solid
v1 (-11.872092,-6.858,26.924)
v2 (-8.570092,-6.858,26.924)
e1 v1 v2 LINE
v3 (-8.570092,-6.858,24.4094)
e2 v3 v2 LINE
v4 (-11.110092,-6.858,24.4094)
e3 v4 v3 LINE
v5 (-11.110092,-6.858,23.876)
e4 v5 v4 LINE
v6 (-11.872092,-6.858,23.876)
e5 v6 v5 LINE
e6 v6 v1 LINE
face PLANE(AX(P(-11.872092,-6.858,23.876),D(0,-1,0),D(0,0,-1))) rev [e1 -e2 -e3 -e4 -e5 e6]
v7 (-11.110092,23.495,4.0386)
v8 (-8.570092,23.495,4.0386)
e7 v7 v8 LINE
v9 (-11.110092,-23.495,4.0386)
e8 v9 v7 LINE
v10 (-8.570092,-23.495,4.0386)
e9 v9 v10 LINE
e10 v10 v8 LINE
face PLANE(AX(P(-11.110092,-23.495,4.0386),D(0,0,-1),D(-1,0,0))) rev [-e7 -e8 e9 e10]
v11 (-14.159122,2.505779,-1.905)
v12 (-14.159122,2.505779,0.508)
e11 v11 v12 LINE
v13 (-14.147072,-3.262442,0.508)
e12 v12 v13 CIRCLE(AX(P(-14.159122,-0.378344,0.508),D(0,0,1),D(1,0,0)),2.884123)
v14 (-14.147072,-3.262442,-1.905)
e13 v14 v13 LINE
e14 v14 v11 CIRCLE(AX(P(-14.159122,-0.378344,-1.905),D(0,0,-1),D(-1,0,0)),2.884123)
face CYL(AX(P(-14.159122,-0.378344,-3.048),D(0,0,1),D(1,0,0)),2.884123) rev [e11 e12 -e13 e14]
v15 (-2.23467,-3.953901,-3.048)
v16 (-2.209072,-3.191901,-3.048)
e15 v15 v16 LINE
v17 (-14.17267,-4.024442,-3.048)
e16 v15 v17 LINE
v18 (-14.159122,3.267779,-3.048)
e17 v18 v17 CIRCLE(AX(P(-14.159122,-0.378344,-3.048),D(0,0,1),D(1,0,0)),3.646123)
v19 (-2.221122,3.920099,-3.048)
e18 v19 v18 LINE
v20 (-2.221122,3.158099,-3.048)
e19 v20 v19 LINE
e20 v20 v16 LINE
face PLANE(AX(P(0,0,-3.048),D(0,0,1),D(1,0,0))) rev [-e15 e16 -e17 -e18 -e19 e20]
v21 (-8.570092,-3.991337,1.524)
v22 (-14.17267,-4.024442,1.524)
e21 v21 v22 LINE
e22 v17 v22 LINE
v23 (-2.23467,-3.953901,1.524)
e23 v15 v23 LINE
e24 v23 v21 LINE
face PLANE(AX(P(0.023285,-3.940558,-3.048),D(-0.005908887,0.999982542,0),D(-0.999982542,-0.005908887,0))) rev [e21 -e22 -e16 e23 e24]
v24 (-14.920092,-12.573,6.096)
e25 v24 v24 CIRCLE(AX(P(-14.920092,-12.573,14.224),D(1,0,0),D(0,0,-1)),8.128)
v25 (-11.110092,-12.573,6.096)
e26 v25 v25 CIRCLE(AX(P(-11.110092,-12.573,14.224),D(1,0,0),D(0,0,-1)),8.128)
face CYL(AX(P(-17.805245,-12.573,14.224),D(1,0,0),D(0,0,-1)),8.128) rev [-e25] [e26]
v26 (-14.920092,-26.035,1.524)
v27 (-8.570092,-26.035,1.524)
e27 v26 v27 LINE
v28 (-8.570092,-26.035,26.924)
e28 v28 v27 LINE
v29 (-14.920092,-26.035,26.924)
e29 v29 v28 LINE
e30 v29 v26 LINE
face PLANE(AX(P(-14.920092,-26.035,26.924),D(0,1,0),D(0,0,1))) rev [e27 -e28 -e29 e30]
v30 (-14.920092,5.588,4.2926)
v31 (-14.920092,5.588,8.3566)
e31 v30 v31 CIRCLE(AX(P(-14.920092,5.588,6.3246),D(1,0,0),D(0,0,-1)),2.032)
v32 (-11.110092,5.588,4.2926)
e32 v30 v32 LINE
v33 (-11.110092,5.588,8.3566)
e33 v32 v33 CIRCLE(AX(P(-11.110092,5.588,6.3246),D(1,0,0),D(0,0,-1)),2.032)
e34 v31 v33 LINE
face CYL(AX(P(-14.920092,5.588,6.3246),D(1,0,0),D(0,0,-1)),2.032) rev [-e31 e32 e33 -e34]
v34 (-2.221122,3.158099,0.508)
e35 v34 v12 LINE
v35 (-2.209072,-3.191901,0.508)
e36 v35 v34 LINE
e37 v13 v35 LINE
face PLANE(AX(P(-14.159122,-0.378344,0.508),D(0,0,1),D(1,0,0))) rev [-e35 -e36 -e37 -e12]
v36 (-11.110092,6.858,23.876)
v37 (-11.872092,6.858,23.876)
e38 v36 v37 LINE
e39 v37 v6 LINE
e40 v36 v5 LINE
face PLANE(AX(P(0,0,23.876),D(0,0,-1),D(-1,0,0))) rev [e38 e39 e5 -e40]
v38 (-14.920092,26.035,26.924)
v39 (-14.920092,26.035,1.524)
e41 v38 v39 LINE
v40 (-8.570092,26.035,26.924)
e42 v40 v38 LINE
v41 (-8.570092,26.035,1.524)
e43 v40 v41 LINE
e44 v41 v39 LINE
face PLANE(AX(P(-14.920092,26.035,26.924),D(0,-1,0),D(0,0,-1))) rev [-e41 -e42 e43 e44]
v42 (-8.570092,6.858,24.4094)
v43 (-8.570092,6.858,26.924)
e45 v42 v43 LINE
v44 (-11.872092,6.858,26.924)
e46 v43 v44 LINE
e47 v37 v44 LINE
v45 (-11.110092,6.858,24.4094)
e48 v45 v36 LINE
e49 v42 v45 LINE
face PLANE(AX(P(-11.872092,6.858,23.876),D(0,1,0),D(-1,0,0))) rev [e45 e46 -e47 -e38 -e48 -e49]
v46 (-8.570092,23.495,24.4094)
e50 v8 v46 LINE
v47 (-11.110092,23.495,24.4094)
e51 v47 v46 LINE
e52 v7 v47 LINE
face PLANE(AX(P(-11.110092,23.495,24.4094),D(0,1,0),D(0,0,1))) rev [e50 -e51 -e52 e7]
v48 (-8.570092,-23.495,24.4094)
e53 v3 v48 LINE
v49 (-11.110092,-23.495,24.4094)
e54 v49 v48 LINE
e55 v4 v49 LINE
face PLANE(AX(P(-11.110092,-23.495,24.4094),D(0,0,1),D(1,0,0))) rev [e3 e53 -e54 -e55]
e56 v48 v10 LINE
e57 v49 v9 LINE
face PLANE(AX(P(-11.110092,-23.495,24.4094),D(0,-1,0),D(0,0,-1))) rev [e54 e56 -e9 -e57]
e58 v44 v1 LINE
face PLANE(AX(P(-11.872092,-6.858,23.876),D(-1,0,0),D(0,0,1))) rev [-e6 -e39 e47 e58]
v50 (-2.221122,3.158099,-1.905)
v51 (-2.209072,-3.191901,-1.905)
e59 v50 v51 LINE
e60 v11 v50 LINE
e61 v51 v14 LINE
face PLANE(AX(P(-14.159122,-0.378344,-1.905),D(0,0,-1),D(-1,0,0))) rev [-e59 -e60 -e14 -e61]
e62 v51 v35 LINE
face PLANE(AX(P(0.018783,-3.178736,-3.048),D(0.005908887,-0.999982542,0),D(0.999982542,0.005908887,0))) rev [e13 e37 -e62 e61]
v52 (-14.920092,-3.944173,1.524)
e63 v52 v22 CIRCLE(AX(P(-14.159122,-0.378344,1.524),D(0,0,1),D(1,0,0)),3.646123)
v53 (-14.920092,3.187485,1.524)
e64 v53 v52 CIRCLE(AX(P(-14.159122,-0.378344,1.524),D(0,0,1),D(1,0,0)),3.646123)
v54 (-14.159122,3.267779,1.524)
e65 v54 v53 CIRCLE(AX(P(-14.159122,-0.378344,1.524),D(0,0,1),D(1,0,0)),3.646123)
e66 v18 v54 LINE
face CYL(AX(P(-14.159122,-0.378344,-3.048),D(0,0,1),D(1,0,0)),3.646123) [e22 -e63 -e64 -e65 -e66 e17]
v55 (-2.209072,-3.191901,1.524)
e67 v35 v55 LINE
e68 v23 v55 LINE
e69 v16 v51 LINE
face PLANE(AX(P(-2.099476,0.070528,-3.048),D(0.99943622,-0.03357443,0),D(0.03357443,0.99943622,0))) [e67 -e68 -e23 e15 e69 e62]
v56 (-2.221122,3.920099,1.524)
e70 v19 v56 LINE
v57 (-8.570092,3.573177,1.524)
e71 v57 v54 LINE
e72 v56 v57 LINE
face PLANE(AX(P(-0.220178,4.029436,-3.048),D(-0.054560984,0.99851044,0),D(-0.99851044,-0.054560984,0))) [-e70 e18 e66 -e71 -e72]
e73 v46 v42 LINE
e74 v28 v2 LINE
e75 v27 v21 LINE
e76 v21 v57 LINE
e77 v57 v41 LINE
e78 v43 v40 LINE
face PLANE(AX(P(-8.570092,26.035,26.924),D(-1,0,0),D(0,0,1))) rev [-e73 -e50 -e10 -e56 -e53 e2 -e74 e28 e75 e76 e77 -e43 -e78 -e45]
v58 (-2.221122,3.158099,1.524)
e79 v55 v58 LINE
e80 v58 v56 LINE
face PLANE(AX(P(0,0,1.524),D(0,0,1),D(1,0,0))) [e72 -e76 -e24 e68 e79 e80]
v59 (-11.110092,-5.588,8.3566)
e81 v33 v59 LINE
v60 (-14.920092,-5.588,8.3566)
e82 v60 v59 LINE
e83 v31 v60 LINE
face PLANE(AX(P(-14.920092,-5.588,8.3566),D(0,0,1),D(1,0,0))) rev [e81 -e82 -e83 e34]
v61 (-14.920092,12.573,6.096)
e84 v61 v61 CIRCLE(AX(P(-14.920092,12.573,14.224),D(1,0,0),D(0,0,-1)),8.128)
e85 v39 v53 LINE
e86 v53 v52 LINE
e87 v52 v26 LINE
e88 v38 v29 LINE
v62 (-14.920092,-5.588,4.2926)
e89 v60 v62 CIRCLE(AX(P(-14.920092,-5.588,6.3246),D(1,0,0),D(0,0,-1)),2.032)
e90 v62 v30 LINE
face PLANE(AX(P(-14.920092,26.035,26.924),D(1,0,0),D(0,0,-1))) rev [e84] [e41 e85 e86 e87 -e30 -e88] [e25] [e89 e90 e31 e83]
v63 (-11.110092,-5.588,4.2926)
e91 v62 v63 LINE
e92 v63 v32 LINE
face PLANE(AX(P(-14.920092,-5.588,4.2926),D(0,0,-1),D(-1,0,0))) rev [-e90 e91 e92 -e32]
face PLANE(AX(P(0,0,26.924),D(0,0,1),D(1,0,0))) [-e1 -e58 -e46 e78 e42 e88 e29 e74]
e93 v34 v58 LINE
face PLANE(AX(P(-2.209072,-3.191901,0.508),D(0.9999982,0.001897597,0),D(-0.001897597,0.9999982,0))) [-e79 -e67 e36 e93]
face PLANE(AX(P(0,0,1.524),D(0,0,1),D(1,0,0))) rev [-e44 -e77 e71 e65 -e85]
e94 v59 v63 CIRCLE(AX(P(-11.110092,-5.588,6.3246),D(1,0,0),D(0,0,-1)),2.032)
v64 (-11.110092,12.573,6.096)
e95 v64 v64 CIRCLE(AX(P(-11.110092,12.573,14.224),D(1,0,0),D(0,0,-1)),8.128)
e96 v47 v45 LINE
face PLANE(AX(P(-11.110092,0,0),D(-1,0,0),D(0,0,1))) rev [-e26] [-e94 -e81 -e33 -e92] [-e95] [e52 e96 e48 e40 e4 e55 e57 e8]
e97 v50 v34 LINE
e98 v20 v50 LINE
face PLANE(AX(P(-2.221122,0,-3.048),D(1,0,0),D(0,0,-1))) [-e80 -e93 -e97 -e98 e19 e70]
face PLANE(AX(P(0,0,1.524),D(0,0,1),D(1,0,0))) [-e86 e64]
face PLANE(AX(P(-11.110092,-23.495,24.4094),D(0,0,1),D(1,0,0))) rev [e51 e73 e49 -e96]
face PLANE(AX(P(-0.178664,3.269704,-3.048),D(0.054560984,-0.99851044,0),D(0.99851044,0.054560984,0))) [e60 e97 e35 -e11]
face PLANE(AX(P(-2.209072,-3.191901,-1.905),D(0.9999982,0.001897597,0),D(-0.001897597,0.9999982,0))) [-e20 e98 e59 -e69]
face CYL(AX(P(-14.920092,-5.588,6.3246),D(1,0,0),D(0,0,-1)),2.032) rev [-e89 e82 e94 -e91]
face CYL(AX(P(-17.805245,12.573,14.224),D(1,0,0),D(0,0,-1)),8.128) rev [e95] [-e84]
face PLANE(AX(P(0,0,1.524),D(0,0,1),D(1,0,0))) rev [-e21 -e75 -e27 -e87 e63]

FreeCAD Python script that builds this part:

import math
import FreeCAD as App
import Part
import Sketcher
from FreeCAD import Vector
Q = App.Units.Quantity


def add_polygon(sketch, points):
    """Adds a closed chain of lines whose ends are joined by coincident constraints."""
    first, n = sketch.GeometryCount, len(points)
    for a, b in zip(points, points[1:] + points[:1]):
        sketch.addGeometry(Part.LineSegment(App.Vector(*a, 0), App.Vector(*b, 0)), False)
    for i in range(n):
        sketch.addConstraint(Sketcher.Constraint("Coincident", first + i, 2, first + (i + 1) % n, 1))

doc = App.newDocument("Part")
body = doc.addObject("PartDesign::Body", "Body")

# Sketch on XY plane
sketch1 = doc.addObject("Sketcher::SketchObject", "Sketch")
body.addObject(sketch1)
sketch1.AttachmentSupport = (doc.XY_Plane, [""])
sketch1.MapMode = "FlatFace"
sketch1.addGeometry([
    Part.LineSegment(Vector(-2.221122, 3.920099, 0), Vector(-14.159122, 3.267779, 0)),  # 0
    Part.ArcOfCircle(Part.Circle(Vector(-14.159122, -0.378344, 0), Vector(0, 0, 1), 3.646123), math.radians(90), math.radians(269.787098)),  # 1
    Part.LineSegment(Vector(-14.17267, -4.024442, 0), Vector(-2.23467, -3.953901, 0)),  # 2
    Part.LineSegment(Vector(-2.23467, -3.953901, 0), Vector(-2.209072, -3.191901, 0)),  # 3
    Part.LineSegment(Vector(-2.209072, -3.191901, 0), Vector(-14.147072, -3.262442, 0)),  # 4
    Part.ArcOfCircle(Part.Circle(Vector(-14.159122, -0.378344, 0), Vector(0, 0, 1), 2.884123), math.radians(90), math.radians(270.23938)),  # 5
    Part.LineSegment(Vector(-14.159122, 2.505779, 0), Vector(-2.221122, 3.158099, 0)),  # 6
    Part.LineSegment(Vector(-2.221122, 3.158099, 0), Vector(-2.221122, 3.920099, 0)),  # 7
], False)
sketch1.addConstraint([
    Sketcher.Constraint("Coincident", 0, 2, 1, 1),
    Sketcher.Constraint("Coincident", 1, 2, 2, 1),
    Sketcher.Constraint("Coincident", 2, 2, 3, 1),
    Sketcher.Constraint("Coincident", 3, 2, 4, 1),
    Sketcher.Constraint("Coincident", 4, 2, 5, 2),
    Sketcher.Constraint("Coincident", 5, 1, 6, 1),
    Sketcher.Constraint("Coincident", 6, 2, 7, 1),
    Sketcher.Constraint("Coincident", 7, 2, 0, 1),
    Sketcher.Constraint("Vertical", 7),
    Sketcher.Constraint("Coincident", 5, 3, 1, 3),
    Sketcher.Constraint("Parallel", 2, 4),
    Sketcher.Constraint("Parallel", 0, 6),
    Sketcher.Constraint("Vertical", 5, 3, 0, 2),
    Sketcher.Constraint("Vertical", 0, 2, 5, 1),
    Sketcher.Constraint("Equal", 2, 4),
    Sketcher.Constraint("DistanceY", 7, 1, 7, 2, Q("0.03 in")),
    Sketcher.Constraint("DistanceX", 1, 2, 2, 2, Q("0.47 in")),
    Sketcher.Constraint("DistanceY", 2, 2, 3, 2, Q("0.03 in")),
    Sketcher.Constraint("DistanceY", 3, 2, 6, 2, Q("0.25 in")),
    Sketcher.Constraint("DistanceX", 0, 2, 6, 2, Q("0.47 in")),
    Sketcher.Constraint("Radius", 1, Q("3.646123 mm")),
    Sketcher.Constraint("DistanceY", 2, 2, -1, 1, Q("3.953901 mm")),
    Sketcher.Constraint("DistanceX", 2, 2, 3, 2, Q("0.025598 mm")),
    Sketcher.Constraint("Distance", 0, Q("11.955809 mm")),
    Sketcher.Constraint("DistanceX", 1, 3, -1, 1, Q("14.159122 mm")),
])
pad1 = doc.addObject("PartDesign::Pad", "Pad")
body.addObject(pad1)
pad1.Profile = sketch1
pad1.Type = "TwoLengths"
pad1.Length = Q("0.06 in")
pad1.Length2 = Q("0.12 in")

# Sketch on XY plane
sketch2 = doc.addObject("Sketcher::SketchObject", "Sketch001")
body.addObject(sketch2)
sketch2.AttachmentSupport = (doc.XY_Plane, [""])
sketch2.MapMode = "FlatFace"
sketch2.AttachmentOffset = App.Placement(Vector(0, 0, 0.06 * 25.4), App.Rotation())
sketch2.addGeometry([
    Part.LineSegment(Vector(-2.209072, -3.191901, 0), Vector(-2.221122, 3.158099, 0)),
    Part.LineSegment(Vector(-2.221122, 3.158099, 0), Vector(-14.159122, 2.505779, 0)),
    Part.ArcOfCircle(Part.Circle(Vector(-14.159122, -0.378344, 0), Vector(0, 0, 1), 2.884123), math.radians(90), math.radians(270.23938)),
    Part.LineSegment(Vector(-14.147072, -3.262442, 0), Vector(-2.209072, -3.191901, 0)),
], False)
sketch2.addConstraint([
    Sketcher.Constraint("Coincident", 0, 2, 1, 1),
    Sketcher.Constraint("Coincident", 1, 2, 2, 1),
    Sketcher.Constraint("Coincident", 2, 2, 3, 1),
    Sketcher.Constraint("Coincident", 3, 2, 0, 1),
    Sketcher.Constraint("Vertical", 2, 3, 1, 2),
    Sketcher.Constraint("DistanceX", 2, 3, 0, 2, Q("0.47 in")),
    Sketcher.Constraint("DistanceY", 3, 2, 0, 2, Q("0.25 in")),
    Sketcher.Constraint("DistanceX", 2, 2, 3, 2, Q("0.47 in")),
    Sketcher.Constraint("Radius", 2, Q("2.884123 mm")),
    Sketcher.Constraint("DistanceY", -1, 1, 0, 2, Q("3.158099 mm")),
    Sketcher.Constraint("Distance", 1, Q("11.955809 mm")),
    Sketcher.Constraint("DistanceX", 2, 3, -1, 1, Q("14.159122 mm")),
    Sketcher.Constraint("DistanceX", 2, 3, 2, 2, Q("0.01205 mm")),
])
pad2 = doc.addObject("PartDesign::Pad", "Pad001")
body.addObject(pad2)
pad2.Profile = sketch2
pad2.Length = Q("0.04 in")
pad2.Reversed = True

# Sketch on XY plane
sketch3 = doc.addObject("Sketcher::SketchObject", "Sketch002")
body.addObject(sketch3)
sketch3.AttachmentSupport = (doc.XY_Plane, [""])
sketch3.MapMode = "FlatFace"
sketch3.AttachmentOffset = App.Placement(Vector(0, 0, -0.12 * 25.4), App.Rotation())
sketch3.addGeometry([
    Part.LineSegment(Vector(-14.159122, 2.505779, 0), Vector(-2.221122, 3.158099, 0)),
    Part.LineSegment(Vector(-2.221122, 3.158099, 0), Vector(-2.209072, -3.191901, 0)),
    Part.LineSegment(Vector(-2.209072, -3.191901, 0), Vector(-14.147072, -3.262442, 0)),
    Part.ArcOfCircle(Part.Circle(Vector(-14.159122, -0.378344, 0), Vector(0, 0, 1), 2.884123), math.radians(90), math.radians(270.23938)),
], False)
sketch3.addConstraint([
    Sketcher.Constraint("Coincident", 0, 2, 1, 1),
    Sketcher.Constraint("Coincident", 1, 2, 2, 1),
    Sketcher.Constraint("Coincident", 2, 2, 3, 2),
    Sketcher.Constraint("Coincident", 3, 1, 0, 1),
    Sketcher.Constraint("DistanceX", 3, 3, 0, 2, Q("0.47 in")),
    Sketcher.Constraint("DistanceY", 1, 2, 0, 2, Q("0.25 in")),
    Sketcher.Constraint("DistanceX", 2, 2, 1, 2, Q("0.47 in")),
    Sketcher.Constraint("DistanceX", 3, 1, 0, 2, Q("0.47 in")),
    Sketcher.Constraint("Radius", 3, Q("2.884123 mm")),
    Sketcher.Constraint("DistanceY", -1, 1, 0, 2, Q("3.158099 mm")),
    Sketcher.Constraint("Distance", 0, Q("11.955809 mm")),
    Sketcher.Constraint("DistanceX", 3, 3, -1, 1, Q("14.159122 mm")),
    Sketcher.Constraint("DistanceX", 0, 2, 1, 2, Q("0.01205 mm")),
])
pad3 = doc.addObject("PartDesign::Pad", "Pad002")
body.addObject(pad3)
pad3.Profile = sketch3
pad3.Length = Q("0.045 in")

# Sketch on XY plane
sketch4 = doc.addObject("Sketcher::SketchObject", "Sketch003")
body.addObject(sketch4)
sketch4.AttachmentSupport = (doc.XY_Plane, [""])
sketch4.MapMode = "FlatFace"
sketch4.AttachmentOffset = App.Placement(Vector(0, 0, 0.06 * 25.4), App.Rotation())
add_polygon(sketch4, [(-14.920092, 26.035), (-14.920092, -26.035), (-8.570092, -26.035), (-8.570092, 26.035)])  # lines 0-3
sketch4.addConstraint([
    Sketcher.Constraint("Vertical", 0),
    Sketcher.Constraint("Horizontal", 1),
    Sketcher.Constraint("Vertical", 2),
    Sketcher.Constraint("Horizontal", 3),
    Sketcher.Constraint("DistanceX", 1, 1, 1, 2, Q("0.25 in")),
    Sketcher.Constraint("DistanceY", 0, 2, 0, 1, Q("2.05 in")),
    Sketcher.Constraint("DistanceY", 0, 2, -1, 1, Q("1.025 in")),
    Sketcher.Constraint("DistanceX", 0, 2, -1, 1, Q("14.920092 mm")),
])
pad4 = doc.addObject("PartDesign::Pad", "Pad003")
body.addObject(pad4)
pad4.Profile = sketch4
pad4.Length = Q("1 in")

# Sketch on YZ plane
sketch5 = doc.addObject("Sketcher::SketchObject", "Sketch004")
body.addObject(sketch5)
sketch5.AttachmentSupport = (doc.YZ_Plane, [""])
sketch5.MapMode = "FlatFace"
sketch5.AttachmentOffset = App.Placement(Vector(0, 0, -8.570092), App.Rotation())
add_polygon(sketch5, [(23.495, 24.4094), (-23.495, 24.4094), (-23.495, 4.0386), (23.495, 4.0386)])  # lines 0-3
sketch5.addConstraint([
    Sketcher.Constraint("Horizontal", 0),
    Sketcher.Constraint("Vertical", 1),
    Sketcher.Constraint("Horizontal", 2),
    Sketcher.Constraint("Vertical", 3),
    Sketcher.Constraint("DistanceX", 0, 2, 0, 1, Q("1.85 in")),
    Sketcher.Constraint("DistanceY", 1, 2, 1, 1, Q("0.802 in")),
    Sketcher.Constraint("DistanceX", 0, 2, -1, 1, Q("0.925 in")),
    Sketcher.Constraint("DistanceY", -1, 1, 0, 2, Q("0.961 in")),
])
pocket1 = doc.addObject("PartDesign::Pocket", "Pocket")
body.addObject(pocket1)
pocket1.Profile = sketch5
pocket1.Length = Q("0.1 in")

# Sketch on YZ plane
sketch6 = doc.addObject("Sketcher::SketchObject", "Sketch005")
body.addObject(sketch6)
sketch6.AttachmentSupport = (doc.YZ_Plane, [""])
sketch6.MapMode = "FlatFace"
sketch6.AttachmentOffset = App.Placement(Vector(0, 0, -11.110092), App.Rotation())
sketch6.addGeometry([
    Part.Circle(Vector(-12.573, 14.224, 0), Vector(0, 0, 1), 8.128),
    Part.Circle(Vector(12.573, 14.224, 0), Vector(0, 0, 1), 8.128),
], False)
sketch6.addConstraint([
    Sketcher.Constraint("Equal", 0, 1),
    Sketcher.Constraint("Symmetric", 0, 3, 1, 3, -2),
    Sketcher.Constraint("Diameter", 0, Q("0.64 in")),
    Sketcher.Constraint("DistanceY", -1, 1, 0, 3, Q("0.56 in")),
    Sketcher.Constraint("DistanceX", 0, 3, 1, 3, Q("0.99 in")),
])
pocket2 = doc.addObject("PartDesign::Pocket", "Pocket001")
body.addObject(pocket2)
pocket2.Profile = sketch6
pocket2.Type = "ThroughAll"

# Sketch on XY plane
sketch7 = doc.addObject("Sketcher::SketchObject", "Sketch006")
body.addObject(sketch7)
sketch7.AttachmentSupport = (doc.XY_Plane, [""])
sketch7.MapMode = "FlatFace"
sketch7.AttachmentOffset = App.Placement(Vector(0, 0, 1.06 * 25.4), App.Rotation())
add_polygon(sketch7, [(-11.872092, 6.858), (-11.872092, -6.858), (-8.570092, -6.858), (-8.570092, 6.858)])  # lines 0-3
sketch7.addConstraint([
    Sketcher.Constraint("Vertical", 0),
    Sketcher.Constraint("Horizontal", 1),
    Sketcher.Constraint("Vertical", 2),
    Sketcher.Constraint("Horizontal", 3),
    Sketcher.Constraint("DistanceX", 1, 1, 1, 2, Q("0.13 in")),
    Sketcher.Constraint("DistanceY", 0, 2, 0, 1, Q("0.54 in")),
    Sketcher.Constraint("DistanceY", 0, 2, -1, 1, Q("0.27 in")),
    Sketcher.Constraint("DistanceX", 0, 2, -1, 1, Q("11.872092 mm")),
])
pocket3 = doc.addObject("PartDesign::Pocket", "Pocket002")
body.addObject(pocket3)
pocket3.Profile = sketch7
pocket3.Length = Q("0.12 in")

# Sketch on YZ plane
sketch8 = doc.addObject("Sketcher::SketchObject", "Sketch007")
body.addObject(sketch8)
sketch8.AttachmentSupport = (doc.YZ_Plane, [""])
sketch8.MapMode = "FlatFace"
sketch8.AttachmentOffset = App.Placement(Vector(0, 0, -11.110092), App.Rotation())
sketch8.addGeometry([
    Part.LineSegment(Vector(5.588, 8.3566, 0), Vector(-5.588, 8.3566, 0)),
    Part.ArcOfCircle(Part.Circle(Vector(-5.588, 6.3246, 0), Vector(0, 0, 1), 2.032), math.radians(90), math.radians(270)),
    Part.LineSegment(Vector(-5.588, 4.2926, 0), Vector(5.588, 4.2926, 0)),
    Part.ArcOfCircle(Part.Circle(Vector(5.588, 6.3246, 0), Vector(0, 0, 1), 2.032), math.radians(-90), math.radians(90)),
], False)
sketch8.addConstraint([
    Sketcher.Constraint("Tangent", 0, 2, 1, 1),
    Sketcher.Constraint("Tangent", 1, 2, 2, 1),
    Sketcher.Constraint("Tangent", 2, 2, 3, 1),
    Sketcher.Constraint("Tangent", 3, 2, 0, 1),
    Sketcher.Constraint("Horizontal", 0),
    Sketcher.Constraint("Horizontal", 2),
    Sketcher.Constraint("Radius", 1, Q("0.08 in")),
    Sketcher.Constraint("DistanceX", 0, 2, 0, 1, Q("0.44 in")),
    Sketcher.Constraint("DistanceX", 1, 3, -1, 1, Q("0.22 in")),
    Sketcher.Constraint("DistanceY", -1, 1, 1, 3, Q("0.249 in")),
])
pocket4 = doc.addObject("PartDesign::Pocket", "Pocket003")
body.addObject(pocket4)
pocket4.Profile = sketch8
pocket4.Length = Q("0.15 in")

doc.recompute()
